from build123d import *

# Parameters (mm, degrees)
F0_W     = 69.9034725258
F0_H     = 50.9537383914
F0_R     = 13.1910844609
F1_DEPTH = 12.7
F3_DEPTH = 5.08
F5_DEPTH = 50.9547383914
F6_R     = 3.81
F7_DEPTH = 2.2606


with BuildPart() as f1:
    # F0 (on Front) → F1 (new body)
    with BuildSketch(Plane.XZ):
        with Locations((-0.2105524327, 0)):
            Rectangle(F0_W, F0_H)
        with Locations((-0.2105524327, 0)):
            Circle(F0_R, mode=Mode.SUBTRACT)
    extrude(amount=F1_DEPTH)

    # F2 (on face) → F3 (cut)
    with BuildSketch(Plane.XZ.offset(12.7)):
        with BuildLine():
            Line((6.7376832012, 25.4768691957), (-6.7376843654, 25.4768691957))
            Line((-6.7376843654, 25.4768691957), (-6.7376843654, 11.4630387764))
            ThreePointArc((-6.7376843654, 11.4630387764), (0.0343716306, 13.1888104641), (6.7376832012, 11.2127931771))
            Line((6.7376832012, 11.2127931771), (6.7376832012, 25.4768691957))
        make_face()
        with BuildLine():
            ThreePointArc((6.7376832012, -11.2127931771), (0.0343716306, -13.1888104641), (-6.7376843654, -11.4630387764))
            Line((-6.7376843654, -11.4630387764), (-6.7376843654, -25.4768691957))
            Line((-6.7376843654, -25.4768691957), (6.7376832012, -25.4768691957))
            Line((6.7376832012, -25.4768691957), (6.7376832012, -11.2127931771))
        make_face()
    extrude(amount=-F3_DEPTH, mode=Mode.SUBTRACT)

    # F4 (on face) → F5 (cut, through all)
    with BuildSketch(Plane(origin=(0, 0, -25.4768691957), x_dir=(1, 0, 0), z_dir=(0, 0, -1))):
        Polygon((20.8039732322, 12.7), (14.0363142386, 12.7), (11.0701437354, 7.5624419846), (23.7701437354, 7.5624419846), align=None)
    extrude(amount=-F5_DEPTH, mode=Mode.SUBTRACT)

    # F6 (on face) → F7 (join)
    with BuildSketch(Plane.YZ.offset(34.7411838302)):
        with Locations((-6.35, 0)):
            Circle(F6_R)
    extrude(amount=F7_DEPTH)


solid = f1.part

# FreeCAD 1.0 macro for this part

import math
import FreeCAD as App
import Part
import Sketcher
from FreeCAD import Vector
Q = App.Units.Quantity

doc = App.newDocument("Part")
body = doc.addObject("PartDesign::Body", "Body")

sketch1 = doc.addObject("Sketcher::SketchObject", "Sketch")
body.addObject(sketch1)
sketch1.AttachmentSupport = (doc.XZ_Plane, [""])
sketch1.MapMode = "FlatFace"
sketch1.addGeometry(Part.LineSegment(Vector(-35, 25, 0), Vector(-35, -25, 0)), False)
sketch1.addGeometry(Part.LineSegment(Vector(-35, -25, 0), Vector(35, -25, 0)), False)
sketch1.addGeometry(Part.LineSegment(Vector(35, -25, 0), Vector(35, 25, 0)), False)
sketch1.addGeometry(Part.LineSegment(Vector(35, 25, 0), Vector(-35, 25, 0)), False)
sketch1.addGeometry(Part.Circle(Vector(0, 0, 0), Vector(0, 0, 1), 13), False)
sketch1.addConstraint(Sketcher.Constraint("Coincident", 0, 2, 1, 1))
sketch1.addConstraint(Sketcher.Constraint("Coincident", 1, 2, 2, 1))
sketch1.addConstraint(Sketcher.Constraint("Coincident", 2, 2, 3, 1))
sketch1.addConstraint(Sketcher.Constraint("Coincident", 3, 2, 0, 1))
sketch1.addConstraint(Sketcher.Constraint("Vertical", 0))
sketch1.addConstraint(Sketcher.Constraint("Horizontal", 1))
sketch1.addConstraint(Sketcher.Constraint("Vertical", 2))
sketch1.addConstraint(Sketcher.Constraint("Horizontal", 3))
sketch1.addConstraint(Sketcher.Constraint("PointOnObject", 4, 3, -1))
sketch1.addConstraint(Sketcher.Constraint("Diameter", 4, 26.382169))
sketch1.addConstraint(Sketcher.Constraint("DistanceY", 0, 2, 0, 1, 50.953738))
sketch1.addConstraint(Sketcher.Constraint("DistanceX", 1, 1, 1, 2, 69.903473))
sketch1.addConstraint(Sketcher.Constraint("DistanceX", 0, 2, -1, 1, 35.162289))
sketch1.addConstraint(Sketcher.Constraint("DistanceY", 0, 2, -1, 1, 25.476869))
sketch1.addConstraint(Sketcher.Constraint("DistanceX", 4, 3, -1, 1, 0.210552))
pad1 = doc.addObject("PartDesign::Pad", "Pad")
body.addObject(pad1)
pad1.Profile = sketch1
pad1.Length = Q("0.5 in")

sketch2 = doc.addObject("Sketcher::SketchObject", "Sketch001")
body.addObject(sketch2)
sketch2.AttachmentSupport = (doc.XZ_Plane, [""])
sketch2.MapMode = "FlatFace"
sketch2.AttachmentOffset = App.Placement(Vector(0, 0, 0.5 * 25.4), App.Rotation())
sketch2.addGeometry(Part.LineSegment(Vector(7, 25, 0), Vector(-7, 25, 0)), False)
sketch2.addGeometry(Part.LineSegment(Vector(-7, 25, 0), Vector(-7, 11, 0)), False)
sketch2.addGeometry(Part.ArcOfCircle(Part.Circle(Vector(0, 0, 0), Vector(0, 0, 1), 13), math.radians(58), math.radians(120)), False)
sketch2.addGeometry(Part.LineSegment(Vector(7, 11, 0), Vector(7, 25, 0)), False)
sketch2.addGeometry(Part.ArcOfCircle(Part.Circle(Vector(0, 0, 0), Vector(0, 0, 1), 13), math.radians(-120), math.radians(-58)), False)
sketch2.addGeometry(Part.LineSegment(Vector(-7, -11, 0), Vector(-7, -25, 0)), False)
sketch2.addGeometry(Part.LineSegment(Vector(-7, -25, 0), Vector(7, -25, 0)), False)
sketch2.addGeometry(Part.LineSegment(Vector(7, -25, 0), Vector(7, -11, 0)), False)
sketch2.addConstraint(Sketcher.Constraint("Coincident", 0, 2, 1, 1))
sketch2.addConstraint(Sketcher.Constraint("Coincident", 1, 2, 2, 2))
sketch2.addConstraint(Sketcher.Constraint("Coincident", 2, 1, 3, 1))
sketch2.addConstraint(Sketcher.Constraint("Coincident", 3, 2, 0, 1))
sketch2.addConstraint(Sketcher.Constraint("Coincident", 4, 1, 5, 1))
sketch2.addConstraint(Sketcher.Constraint("Coincident", 5, 2, 6, 1))
sketch2.addConstraint(Sketcher.Constraint("Coincident", 6, 2, 7, 1))
sketch2.addConstraint(Sketcher.Constraint("Coincident", 7, 2, 4, 2))
sketch2.addConstraint(Sketcher.Constraint("Horizontal", 0))
sketch2.addConstraint(Sketcher.Constraint("Vertical", 1))
sketch2.addConstraint(Sketcher.Constraint("Vertical", 3))
sketch2.addConstraint(Sketcher.Constraint("Vertical", 5))
sketch2.addConstraint(Sketcher.Constraint("Horizontal", 6))
sketch2.addConstraint(Sketcher.Constraint("Vertical", 7))
sketch2.addConstraint(Sketcher.Constraint("Coincident", 4, 3, 2, 3))
sketch2.addConstraint(Sketcher.Constraint("Equal", 2, 4))
sketch2.addConstraint(Sketcher.Constraint("Symmetric", 3, 2, 5, 2, -1, 1))
sketch2.addConstraint(Sketcher.Constraint("Symmetric", 1, 2, 4, 1, -1))
sketch2.addConstraint(Sketcher.Constraint("Vertical", 3, 2, 6, 2))
sketch2.addConstraint(Sketcher.Constraint("Radius", 2, 13.191084))
sketch2.addConstraint(Sketcher.Constraint("DistanceY", 1, 2, 1, 1, 14.01383))
sketch2.addConstraint(Sketcher.Constraint("DistanceX", 0, 2, 0, 1, 13.475368))
sketch2.addConstraint(Sketcher.Constraint("DistanceY", 3, 1, 3, 2, 14.264076))
pocket1 = doc.addObject("PartDesign::Pocket", "Pocket")
body.addObject(pocket1)
pocket1.Profile = sketch2
pocket1.Length = Q("0.2 in")

sketch3 = doc.addObject("Sketcher::SketchObject", "Sketch002")
body.addObject(sketch3)
sketch3.AttachmentSupport = (doc.XY_Plane, [""])
sketch3.MapMode = "FlatFace"
sketch3.AttachmentOffset = App.Placement(Vector(0, 0, -25.476869), App.Rotation())
sketch3.addGeometry(Part.LineSegment(Vector(21, -13, 0), Vector(14, -13, 0)), False)
sketch3.addGeometry(Part.LineSegment(Vector(14, -13, 0), Vector(11, -8, 0)), False)
sketch3.addGeometry(Part.LineSegment(Vector(11, -8, 0), Vector(24, -8, 0)), False)
sketch3.addGeometry(Part.LineSegment(Vector(24, -8, 0), Vector(21, -13, 0)), False)
sketch3.addConstraint(Sketcher.Constraint("Coincident", 0, 2, 1, 1))
sketch3.addConstraint(Sketcher.Constraint("Coincident", 1, 2, 2, 1))
sketch3.addConstraint(Sketcher.Constraint("Coincident", 2, 2, 3, 1))
sketch3.addConstraint(Sketcher.Constraint("Coincident", 3, 2, 0, 1))
sketch3.addConstraint(Sketcher.Constraint("Horizontal", 0))
sketch3.addConstraint(Sketcher.Constraint("Horizontal", 2))
sketch3.addConstraint(Sketcher.Constraint("Equal", 1, 3))
sketch3.addConstraint(Sketcher.Constraint("DistanceX", 2, 1, 2, 2, Q("0.5 in")))
sketch3.addConstraint(Sketcher.Constraint("Angle", 1, Q("120 deg")))
sketch3.addConstraint(Sketcher.Constraint("DistanceY", 0, 2, -1, 1, Q("0.5 in")))
sketch3.addConstraint(Sketcher.Constraint("DistanceX", 0, 2, 0, 1, 6.767659))
sketch3.addConstraint(Sketcher.Constraint("DistanceX", -1, 1, 0, 2, 14.036314))
pocket2 = doc.addObject("PartDesign::Pocket", "Pocket001")
body.addObject(pocket2)
pocket2.Profile = sketch3
pocket2.Type = "ThroughAll"
pocket2.Reversed = True

sketch4 = doc.addObject("Sketcher::SketchObject", "Sketch003")
body.addObject(sketch4)
sketch4.AttachmentSupport = (doc.YZ_Plane, [""])
sketch4.MapMode = "FlatFace"
sketch4.AttachmentOffset = App.Placement(Vector(0, 0, 34.741184), App.Rotation())
sketch4.addGeometry(Part.Circle(Vector(-6.3, 0, 0), Vector(0, 0, 1), 3.8), False)
sketch4.addConstraint(Sketcher.Constraint("PointOnObject", 0, 3, -1))
sketch4.addConstraint(Sketcher.Constraint("Diameter", 0, Q("0.3 in")))
sketch4.addConstraint(Sketcher.Constraint("DistanceX", 0, 3, -1, 1, Q("0.25 in")))
pad2 = doc.addObject("PartDesign::Pad", "Pad001")
body.addObject(pad2)
pad2.Profile = sketch4
pad2.Length = Q("0.089 in")

doc.recompute()
